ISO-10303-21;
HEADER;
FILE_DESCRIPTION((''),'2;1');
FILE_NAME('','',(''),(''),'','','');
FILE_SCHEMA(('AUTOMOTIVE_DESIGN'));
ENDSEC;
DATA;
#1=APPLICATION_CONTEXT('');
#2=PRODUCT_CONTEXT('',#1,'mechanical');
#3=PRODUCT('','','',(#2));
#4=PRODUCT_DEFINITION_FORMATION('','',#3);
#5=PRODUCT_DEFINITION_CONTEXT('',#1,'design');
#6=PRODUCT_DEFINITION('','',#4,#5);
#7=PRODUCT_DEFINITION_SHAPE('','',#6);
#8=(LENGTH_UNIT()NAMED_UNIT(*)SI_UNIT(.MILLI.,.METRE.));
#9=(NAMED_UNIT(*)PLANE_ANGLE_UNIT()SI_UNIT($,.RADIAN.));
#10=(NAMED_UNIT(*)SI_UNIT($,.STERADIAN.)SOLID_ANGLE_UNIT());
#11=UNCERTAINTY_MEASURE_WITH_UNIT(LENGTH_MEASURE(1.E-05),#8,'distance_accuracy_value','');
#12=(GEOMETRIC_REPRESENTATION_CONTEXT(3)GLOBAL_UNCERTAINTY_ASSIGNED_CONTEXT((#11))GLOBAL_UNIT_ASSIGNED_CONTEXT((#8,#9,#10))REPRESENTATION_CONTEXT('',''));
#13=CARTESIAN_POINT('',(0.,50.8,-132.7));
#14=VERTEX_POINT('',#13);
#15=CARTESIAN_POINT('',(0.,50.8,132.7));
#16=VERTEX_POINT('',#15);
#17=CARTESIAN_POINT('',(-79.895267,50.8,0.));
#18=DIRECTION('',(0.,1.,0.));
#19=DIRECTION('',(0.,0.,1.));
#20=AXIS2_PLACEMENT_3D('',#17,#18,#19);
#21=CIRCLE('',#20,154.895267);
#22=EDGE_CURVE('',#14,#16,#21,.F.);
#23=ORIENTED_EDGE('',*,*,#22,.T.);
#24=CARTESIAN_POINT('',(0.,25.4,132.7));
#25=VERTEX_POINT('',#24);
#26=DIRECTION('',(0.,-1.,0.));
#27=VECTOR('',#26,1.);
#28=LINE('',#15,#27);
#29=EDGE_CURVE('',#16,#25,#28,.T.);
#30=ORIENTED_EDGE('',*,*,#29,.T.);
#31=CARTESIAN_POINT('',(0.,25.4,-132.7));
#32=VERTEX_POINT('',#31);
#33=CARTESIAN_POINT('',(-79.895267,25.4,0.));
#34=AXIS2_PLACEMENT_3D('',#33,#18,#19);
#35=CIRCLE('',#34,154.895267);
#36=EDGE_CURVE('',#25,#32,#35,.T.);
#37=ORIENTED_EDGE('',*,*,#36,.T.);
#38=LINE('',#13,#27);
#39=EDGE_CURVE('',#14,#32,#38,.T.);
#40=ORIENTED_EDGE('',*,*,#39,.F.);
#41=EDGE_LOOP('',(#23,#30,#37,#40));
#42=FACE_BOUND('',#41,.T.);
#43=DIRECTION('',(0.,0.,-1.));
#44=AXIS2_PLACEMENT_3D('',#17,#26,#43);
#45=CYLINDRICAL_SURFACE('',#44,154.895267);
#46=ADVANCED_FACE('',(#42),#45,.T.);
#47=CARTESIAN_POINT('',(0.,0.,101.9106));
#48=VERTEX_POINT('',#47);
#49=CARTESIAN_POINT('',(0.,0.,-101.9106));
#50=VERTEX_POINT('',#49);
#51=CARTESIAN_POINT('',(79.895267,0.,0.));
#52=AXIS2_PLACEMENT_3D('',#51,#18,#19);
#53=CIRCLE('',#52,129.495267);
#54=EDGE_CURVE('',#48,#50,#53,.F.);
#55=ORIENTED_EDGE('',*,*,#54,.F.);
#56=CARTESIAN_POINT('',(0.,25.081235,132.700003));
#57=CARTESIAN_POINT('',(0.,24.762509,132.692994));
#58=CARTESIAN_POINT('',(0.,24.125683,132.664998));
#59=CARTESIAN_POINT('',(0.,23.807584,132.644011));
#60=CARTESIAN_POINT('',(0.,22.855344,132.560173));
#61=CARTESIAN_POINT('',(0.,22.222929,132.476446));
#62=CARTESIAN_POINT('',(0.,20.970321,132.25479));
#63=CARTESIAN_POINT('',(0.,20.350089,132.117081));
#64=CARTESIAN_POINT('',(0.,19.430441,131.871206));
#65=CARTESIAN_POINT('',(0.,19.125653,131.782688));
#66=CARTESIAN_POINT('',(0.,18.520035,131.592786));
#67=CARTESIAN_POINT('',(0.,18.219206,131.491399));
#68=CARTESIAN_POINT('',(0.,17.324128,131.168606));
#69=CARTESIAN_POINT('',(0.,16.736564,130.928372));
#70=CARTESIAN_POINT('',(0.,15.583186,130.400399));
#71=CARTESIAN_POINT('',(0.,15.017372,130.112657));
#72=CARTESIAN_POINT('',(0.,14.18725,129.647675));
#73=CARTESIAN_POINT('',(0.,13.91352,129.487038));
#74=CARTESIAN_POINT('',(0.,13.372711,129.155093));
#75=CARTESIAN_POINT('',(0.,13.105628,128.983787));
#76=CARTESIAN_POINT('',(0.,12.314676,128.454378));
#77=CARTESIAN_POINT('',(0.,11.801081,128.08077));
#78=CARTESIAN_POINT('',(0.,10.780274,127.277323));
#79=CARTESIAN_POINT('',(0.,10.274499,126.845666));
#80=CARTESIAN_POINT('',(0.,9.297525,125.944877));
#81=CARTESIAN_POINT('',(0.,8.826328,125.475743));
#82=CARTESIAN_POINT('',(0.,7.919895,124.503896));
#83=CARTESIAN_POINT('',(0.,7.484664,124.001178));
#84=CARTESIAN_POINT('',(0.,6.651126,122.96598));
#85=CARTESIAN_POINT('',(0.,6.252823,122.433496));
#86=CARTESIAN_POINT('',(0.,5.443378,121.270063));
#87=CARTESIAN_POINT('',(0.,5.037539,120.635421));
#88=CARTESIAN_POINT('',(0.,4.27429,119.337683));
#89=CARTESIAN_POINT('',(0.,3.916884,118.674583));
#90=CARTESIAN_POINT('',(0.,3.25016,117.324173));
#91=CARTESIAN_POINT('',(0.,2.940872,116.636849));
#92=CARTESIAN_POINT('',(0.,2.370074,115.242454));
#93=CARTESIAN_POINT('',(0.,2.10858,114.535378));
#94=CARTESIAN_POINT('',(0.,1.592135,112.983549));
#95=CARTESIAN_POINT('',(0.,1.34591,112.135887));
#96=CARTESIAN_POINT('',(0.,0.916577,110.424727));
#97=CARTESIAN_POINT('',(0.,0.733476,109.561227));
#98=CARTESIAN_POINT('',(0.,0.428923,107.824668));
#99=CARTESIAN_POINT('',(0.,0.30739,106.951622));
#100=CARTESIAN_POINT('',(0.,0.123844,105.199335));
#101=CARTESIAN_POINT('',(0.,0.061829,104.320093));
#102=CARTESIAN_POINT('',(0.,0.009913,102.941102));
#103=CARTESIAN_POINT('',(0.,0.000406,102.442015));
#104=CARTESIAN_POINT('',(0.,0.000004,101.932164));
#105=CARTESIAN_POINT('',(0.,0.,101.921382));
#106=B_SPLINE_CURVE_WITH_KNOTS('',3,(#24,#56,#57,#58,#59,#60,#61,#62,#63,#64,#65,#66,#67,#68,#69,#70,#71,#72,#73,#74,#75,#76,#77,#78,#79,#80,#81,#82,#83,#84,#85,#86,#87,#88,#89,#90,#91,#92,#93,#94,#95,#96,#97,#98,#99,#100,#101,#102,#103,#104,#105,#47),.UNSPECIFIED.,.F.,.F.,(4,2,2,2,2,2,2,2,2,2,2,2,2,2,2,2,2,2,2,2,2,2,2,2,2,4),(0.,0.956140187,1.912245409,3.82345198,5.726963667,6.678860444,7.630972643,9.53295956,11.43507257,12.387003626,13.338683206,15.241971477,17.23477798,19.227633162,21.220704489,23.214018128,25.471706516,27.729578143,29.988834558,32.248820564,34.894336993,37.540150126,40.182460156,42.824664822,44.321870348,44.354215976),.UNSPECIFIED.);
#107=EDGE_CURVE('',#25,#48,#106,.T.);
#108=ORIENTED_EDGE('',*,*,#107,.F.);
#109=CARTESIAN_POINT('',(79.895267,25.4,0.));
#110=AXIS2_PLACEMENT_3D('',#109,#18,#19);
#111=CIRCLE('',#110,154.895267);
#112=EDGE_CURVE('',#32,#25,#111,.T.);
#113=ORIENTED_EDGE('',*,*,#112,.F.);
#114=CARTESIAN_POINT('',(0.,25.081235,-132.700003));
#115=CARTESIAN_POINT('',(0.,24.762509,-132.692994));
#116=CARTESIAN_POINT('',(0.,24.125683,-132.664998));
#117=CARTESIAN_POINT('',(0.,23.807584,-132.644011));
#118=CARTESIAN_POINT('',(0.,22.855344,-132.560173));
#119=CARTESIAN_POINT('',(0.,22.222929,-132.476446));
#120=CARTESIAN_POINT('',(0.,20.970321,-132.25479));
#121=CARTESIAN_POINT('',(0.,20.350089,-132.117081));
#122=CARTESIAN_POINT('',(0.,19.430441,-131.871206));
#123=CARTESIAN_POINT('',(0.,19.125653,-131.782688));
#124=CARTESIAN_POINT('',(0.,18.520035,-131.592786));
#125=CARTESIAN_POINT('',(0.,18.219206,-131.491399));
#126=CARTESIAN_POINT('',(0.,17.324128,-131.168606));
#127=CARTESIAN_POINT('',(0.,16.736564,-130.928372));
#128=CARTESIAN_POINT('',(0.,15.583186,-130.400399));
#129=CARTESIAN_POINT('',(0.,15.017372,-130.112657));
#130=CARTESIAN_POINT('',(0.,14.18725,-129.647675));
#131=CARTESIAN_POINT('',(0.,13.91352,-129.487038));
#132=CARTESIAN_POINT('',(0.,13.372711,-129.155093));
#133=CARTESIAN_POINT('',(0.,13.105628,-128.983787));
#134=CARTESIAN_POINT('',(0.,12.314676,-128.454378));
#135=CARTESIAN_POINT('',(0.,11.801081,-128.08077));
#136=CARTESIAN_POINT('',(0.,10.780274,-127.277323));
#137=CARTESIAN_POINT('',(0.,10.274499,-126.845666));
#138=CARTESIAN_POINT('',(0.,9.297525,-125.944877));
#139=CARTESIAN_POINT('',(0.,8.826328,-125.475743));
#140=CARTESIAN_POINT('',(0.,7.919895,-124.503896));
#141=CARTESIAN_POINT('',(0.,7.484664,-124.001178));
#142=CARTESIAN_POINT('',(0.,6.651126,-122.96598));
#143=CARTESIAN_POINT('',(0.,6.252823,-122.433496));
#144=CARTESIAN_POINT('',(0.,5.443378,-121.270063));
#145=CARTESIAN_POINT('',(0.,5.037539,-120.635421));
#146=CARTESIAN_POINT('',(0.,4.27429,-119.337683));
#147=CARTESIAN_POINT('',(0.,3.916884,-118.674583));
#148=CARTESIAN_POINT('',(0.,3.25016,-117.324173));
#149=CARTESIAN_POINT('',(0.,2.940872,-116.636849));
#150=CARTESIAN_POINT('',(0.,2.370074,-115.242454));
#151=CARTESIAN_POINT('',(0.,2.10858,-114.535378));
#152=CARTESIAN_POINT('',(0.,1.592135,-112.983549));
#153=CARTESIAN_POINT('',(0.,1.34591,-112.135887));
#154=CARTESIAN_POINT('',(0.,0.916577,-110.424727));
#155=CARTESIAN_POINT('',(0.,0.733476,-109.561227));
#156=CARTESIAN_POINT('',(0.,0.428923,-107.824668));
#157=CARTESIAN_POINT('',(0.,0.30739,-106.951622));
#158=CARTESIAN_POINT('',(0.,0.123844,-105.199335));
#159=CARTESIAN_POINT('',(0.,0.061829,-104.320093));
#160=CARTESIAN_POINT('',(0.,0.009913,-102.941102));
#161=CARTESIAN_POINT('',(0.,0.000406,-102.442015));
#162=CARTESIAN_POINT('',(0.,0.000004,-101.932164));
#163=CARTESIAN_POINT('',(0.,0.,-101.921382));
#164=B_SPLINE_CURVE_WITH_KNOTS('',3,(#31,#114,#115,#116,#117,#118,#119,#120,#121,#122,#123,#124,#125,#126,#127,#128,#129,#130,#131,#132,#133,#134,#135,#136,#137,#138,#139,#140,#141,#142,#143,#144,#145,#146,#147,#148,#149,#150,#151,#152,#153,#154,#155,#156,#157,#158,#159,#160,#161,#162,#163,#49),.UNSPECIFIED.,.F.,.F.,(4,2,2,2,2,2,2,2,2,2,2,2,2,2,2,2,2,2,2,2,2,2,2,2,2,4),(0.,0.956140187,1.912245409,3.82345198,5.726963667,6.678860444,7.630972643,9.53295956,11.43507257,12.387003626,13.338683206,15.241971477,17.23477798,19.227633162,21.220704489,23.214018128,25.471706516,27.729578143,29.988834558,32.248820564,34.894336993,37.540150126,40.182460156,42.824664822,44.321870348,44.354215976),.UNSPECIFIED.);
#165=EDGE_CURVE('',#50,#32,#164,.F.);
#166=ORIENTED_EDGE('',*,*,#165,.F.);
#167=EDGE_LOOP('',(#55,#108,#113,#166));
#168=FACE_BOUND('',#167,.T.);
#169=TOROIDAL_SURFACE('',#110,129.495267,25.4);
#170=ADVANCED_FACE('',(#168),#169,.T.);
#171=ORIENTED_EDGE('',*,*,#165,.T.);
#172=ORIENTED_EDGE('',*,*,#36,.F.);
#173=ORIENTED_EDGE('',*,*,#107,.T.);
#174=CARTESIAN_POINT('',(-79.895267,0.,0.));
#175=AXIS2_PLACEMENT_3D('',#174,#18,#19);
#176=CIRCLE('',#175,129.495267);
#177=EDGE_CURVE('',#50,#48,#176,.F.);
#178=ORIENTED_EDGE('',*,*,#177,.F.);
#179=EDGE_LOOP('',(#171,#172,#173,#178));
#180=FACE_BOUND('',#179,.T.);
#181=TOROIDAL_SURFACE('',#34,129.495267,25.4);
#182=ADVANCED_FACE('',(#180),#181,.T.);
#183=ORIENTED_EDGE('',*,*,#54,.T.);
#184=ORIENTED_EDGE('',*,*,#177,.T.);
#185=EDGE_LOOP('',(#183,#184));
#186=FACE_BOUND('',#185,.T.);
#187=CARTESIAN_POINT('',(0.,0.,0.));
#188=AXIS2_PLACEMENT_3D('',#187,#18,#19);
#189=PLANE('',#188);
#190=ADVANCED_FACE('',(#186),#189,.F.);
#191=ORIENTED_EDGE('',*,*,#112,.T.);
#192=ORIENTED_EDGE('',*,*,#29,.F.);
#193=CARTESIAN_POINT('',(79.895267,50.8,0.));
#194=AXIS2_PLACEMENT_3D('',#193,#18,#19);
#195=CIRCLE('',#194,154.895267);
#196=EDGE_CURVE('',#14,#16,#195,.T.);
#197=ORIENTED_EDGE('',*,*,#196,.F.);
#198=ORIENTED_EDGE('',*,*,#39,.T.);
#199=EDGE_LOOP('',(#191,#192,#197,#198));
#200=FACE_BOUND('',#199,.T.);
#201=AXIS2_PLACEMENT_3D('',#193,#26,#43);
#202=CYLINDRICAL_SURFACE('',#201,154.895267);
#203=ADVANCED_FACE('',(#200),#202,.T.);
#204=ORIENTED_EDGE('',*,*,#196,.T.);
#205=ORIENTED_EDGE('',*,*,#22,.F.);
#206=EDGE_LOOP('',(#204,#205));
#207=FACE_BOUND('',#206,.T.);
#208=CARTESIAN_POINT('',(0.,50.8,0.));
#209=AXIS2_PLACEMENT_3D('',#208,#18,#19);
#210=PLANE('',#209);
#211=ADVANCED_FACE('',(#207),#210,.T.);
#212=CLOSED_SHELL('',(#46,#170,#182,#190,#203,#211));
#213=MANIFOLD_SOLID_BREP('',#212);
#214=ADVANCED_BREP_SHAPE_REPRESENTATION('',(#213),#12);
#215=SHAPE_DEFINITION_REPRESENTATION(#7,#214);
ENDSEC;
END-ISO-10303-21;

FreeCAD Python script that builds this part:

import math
import FreeCAD as App
import Part
import Sketcher
Q = App.Units.Quantity


def edges_at(feature, points):
    """Names of the edges that pass closest to the given points."""
    edges = feature.Shape.Edges
    near = lambda p: min(range(len(edges)), key=lambda i: edges[i].distToShape(Part.Vertex(*p))[0])
    return sorted({f"Edge{near(p) + 1}" for p in points})

doc = App.newDocument("Part")
body = doc.addObject("PartDesign::Body", "Body")

# Sketch on XZ plane
sketch1 = body.newObject("Sketcher::SketchObject", "Sketch")
sketch1.AttachmentSupport = (doc.getObject("XZ_Plane"), [""])
sketch1.MapMode = "FlatFace"
sketch1.addGeometry(Part.ArcOfCircle(Part.Circle(App.Vector(-80, 0, 0), App.Vector(0, 0, 1), 155), math.radians(-59), math.radians(59)), False)
sketch1.addGeometry(Part.ArcOfCircle(Part.Circle(App.Vector(80, 0, 0), App.Vector(0, 0, 1), 155), math.radians(121), math.radians(239)), False)
sketch1.addConstraint(Sketcher.Constraint("Coincident", 0, 1, 1, 2))
sketch1.addConstraint(Sketcher.Constraint("Coincident", 1, 1, 0, 2))
sketch1.addConstraint(Sketcher.Constraint("Equal", 0, 1))
sketch1.addConstraint(Sketcher.Constraint("Symmetric", 0, 3, 1, 3, -1, 1))
sketch1.addConstraint(Sketcher.Constraint("PointOnObject", 0, 3, -1))
sketch1.addConstraint(Sketcher.Constraint("Radius", 0, 154.895267))
sketch1.addConstraint(Sketcher.Constraint("DistanceY", 0, 1, -1, 1, 132.7))
pad1 = body.newObject("PartDesign::Pad", "Pad")
pad1.Profile = sketch1
pad1.Length = Q("2 in")
pad1.Reversed = True
doc.recompute()

fillet = body.newObject("PartDesign::Fillet", "Fillet")
fillet.Base = (pad1, edges_at(pad1, [(-75, 0, 0), (75, 0, 0)]))
fillet.Radius = Q("1 in")

doc.recompute()
